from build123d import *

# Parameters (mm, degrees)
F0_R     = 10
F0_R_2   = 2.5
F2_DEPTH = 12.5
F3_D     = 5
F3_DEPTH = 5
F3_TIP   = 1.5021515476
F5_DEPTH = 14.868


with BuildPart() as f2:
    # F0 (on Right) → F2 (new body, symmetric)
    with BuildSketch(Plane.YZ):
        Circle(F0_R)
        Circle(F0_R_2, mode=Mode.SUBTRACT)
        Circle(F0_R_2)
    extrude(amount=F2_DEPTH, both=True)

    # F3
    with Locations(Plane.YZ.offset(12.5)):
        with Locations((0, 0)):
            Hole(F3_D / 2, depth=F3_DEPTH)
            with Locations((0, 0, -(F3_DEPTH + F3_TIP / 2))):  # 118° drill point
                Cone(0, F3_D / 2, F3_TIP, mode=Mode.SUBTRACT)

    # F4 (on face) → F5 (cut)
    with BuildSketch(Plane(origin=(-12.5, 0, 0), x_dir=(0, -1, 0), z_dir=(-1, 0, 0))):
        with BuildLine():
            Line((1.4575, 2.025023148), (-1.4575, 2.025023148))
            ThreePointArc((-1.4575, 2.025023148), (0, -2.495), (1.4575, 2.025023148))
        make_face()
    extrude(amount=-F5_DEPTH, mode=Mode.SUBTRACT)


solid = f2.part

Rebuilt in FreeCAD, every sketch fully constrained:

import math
import FreeCAD as App
import Part
import Sketcher

doc = App.newDocument("Part")
body = doc.addObject("PartDesign::Body", "Body")

# Sketch on YZ plane
sketch1 = doc.addObject("Sketcher::SketchObject", "Sketch")
body.addObject(sketch1)
sketch1.AttachmentSupport = (doc.YZ_Plane, [""])
sketch1.MapMode = "FlatFace"
sketch1.addGeometry(Part.Circle(App.Vector(0, 0, 0), App.Vector(0, 0, 1), 10), False)
sketch1.addConstraint([
    Sketcher.Constraint("Coincident", 0, 3, -1, 1),
    Sketcher.Constraint("Diameter", 0, 20.0),
])
pad1 = doc.addObject("PartDesign::Pad", "Pad")
body.addObject(pad1)
pad1.Profile = sketch1
pad1.Length = 25
pad1.Midplane = True

# Sketch on YZ plane
sketch2 = doc.addObject("Sketcher::SketchObject", "Sketch001")
body.addObject(sketch2)
sketch2.AttachmentSupport = (doc.YZ_Plane, [""])
sketch2.MapMode = "FlatFace"
sketch2.AttachmentOffset = App.Placement(App.Vector(0, 0, 12.5), App.Rotation())
sketch2.addGeometry(Part.Circle(App.Vector(0, 0, 0), App.Vector(0, 0, 1), 2.5), False)
sketch2.addConstraint([
    Sketcher.Constraint("Coincident", 0, 3, -1, 1),
    Sketcher.Constraint("Diameter", 0, 5.0),
])
doc.recompute()
hole = doc.addObject("PartDesign::Hole", "Hole")
body.addObject(hole)
hole.Profile = sketch2
hole.ThreadType = "None"
hole.Diameter = 5
hole.DepthType = "Dimension"
hole.Depth = 5
hole.DrillPoint = "Angled"
hole.DrillPointAngle = 118

# Sketch on YZ plane
sketch3 = doc.addObject("Sketcher::SketchObject", "Sketch002")
body.addObject(sketch3)
sketch3.AttachmentSupport = (doc.YZ_Plane, [""])
sketch3.MapMode = "FlatFace"
sketch3.AttachmentOffset = App.Placement(App.Vector(0, 0, -12.5), App.Rotation())
sketch3.addGeometry([
    Part.LineSegment(App.Vector(-1.4575, 2.025023, 0), App.Vector(1.4575, 2.025023, 0)),
    Part.ArcOfCircle(Part.Circle(App.Vector(0, 0, 0), App.Vector(0, 0, 1), 2.495), math.radians(125.744259), math.radians(414.255741)),
], False)
sketch3.addConstraint([
    Sketcher.Constraint("Coincident", 0, 1, 1, 1),
    Sketcher.Constraint("Coincident", 1, 2, 0, 2),
    Sketcher.Constraint("Horizontal", 0),
    Sketcher.Constraint("Coincident", 1, 3, -1, 1),
    Sketcher.Constraint("Radius", 1, 2.495),
    Sketcher.Constraint("DistanceX", 0, 1, 0, 2, 2.915),
])
pocket1 = doc.addObject("PartDesign::Pocket", "Pocket")
body.addObject(pocket1)
pocket1.Profile = sketch3
pocket1.Length = 14.868
pocket1.Reversed = True

doc.recompute()
